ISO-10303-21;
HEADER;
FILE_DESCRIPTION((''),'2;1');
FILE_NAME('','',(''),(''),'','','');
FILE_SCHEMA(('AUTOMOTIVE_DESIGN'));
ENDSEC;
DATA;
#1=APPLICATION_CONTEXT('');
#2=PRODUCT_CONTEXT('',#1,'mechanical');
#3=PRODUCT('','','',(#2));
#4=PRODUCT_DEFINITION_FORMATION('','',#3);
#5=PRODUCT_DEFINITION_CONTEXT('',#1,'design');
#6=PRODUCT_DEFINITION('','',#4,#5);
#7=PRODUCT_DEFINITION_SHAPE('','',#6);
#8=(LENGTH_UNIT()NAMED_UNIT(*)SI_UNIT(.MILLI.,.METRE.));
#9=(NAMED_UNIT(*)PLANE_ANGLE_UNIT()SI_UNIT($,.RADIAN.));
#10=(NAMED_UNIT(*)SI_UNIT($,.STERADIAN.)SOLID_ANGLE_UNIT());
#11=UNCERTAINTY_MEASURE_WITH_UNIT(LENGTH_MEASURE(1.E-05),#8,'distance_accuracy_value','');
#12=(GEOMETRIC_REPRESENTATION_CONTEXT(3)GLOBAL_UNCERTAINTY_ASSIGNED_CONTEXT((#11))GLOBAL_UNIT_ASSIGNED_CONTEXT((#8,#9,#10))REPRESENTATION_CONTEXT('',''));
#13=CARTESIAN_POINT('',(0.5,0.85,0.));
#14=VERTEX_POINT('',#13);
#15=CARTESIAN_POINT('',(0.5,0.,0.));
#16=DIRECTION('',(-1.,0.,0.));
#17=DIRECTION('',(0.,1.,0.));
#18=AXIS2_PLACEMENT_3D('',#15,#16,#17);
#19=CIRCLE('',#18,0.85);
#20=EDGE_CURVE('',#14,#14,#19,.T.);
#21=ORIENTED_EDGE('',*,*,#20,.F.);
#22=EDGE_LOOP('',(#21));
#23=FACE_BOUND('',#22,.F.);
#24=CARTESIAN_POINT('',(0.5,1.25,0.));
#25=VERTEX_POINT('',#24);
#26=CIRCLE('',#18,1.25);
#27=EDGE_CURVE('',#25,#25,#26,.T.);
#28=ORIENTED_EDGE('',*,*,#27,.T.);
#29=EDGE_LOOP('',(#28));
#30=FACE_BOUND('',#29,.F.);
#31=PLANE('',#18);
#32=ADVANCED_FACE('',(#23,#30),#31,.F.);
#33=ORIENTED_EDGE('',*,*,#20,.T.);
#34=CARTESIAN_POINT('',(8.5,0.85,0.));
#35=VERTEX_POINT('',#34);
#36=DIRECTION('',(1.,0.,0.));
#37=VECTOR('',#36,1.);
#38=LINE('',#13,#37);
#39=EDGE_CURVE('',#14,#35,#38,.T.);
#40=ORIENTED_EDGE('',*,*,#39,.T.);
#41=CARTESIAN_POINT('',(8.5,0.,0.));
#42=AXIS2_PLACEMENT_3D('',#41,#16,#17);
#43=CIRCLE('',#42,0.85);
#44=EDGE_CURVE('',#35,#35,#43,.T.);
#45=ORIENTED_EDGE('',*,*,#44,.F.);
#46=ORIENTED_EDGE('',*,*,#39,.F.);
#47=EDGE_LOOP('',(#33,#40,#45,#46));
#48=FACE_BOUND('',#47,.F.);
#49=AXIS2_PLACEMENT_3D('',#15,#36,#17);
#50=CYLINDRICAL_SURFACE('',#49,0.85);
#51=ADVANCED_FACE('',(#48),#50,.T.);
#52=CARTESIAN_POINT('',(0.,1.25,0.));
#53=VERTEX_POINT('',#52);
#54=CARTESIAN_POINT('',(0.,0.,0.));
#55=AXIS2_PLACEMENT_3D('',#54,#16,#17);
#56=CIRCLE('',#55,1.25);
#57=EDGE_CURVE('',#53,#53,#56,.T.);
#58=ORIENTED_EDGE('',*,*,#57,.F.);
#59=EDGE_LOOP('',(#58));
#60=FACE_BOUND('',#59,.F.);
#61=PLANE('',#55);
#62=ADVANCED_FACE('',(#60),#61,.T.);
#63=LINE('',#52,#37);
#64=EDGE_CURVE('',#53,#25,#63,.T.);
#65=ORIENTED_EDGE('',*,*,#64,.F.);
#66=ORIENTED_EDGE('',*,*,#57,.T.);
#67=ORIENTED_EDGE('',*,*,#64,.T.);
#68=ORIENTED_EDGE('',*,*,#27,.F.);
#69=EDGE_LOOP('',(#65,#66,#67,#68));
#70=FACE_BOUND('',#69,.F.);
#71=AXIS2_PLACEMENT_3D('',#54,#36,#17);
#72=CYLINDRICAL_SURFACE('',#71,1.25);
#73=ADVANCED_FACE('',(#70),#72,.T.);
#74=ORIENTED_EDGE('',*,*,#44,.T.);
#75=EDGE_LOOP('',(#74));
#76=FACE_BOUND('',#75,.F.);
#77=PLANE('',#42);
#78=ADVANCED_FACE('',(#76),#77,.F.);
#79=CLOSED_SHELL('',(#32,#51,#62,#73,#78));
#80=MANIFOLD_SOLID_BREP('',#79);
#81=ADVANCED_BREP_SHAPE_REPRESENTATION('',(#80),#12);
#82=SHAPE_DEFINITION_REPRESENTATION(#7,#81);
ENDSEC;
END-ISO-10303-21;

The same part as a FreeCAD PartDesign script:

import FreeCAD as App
import Part
import Sketcher

V = App.Vector
Q = App.Units.Quantity


def add_polygon(sketch, points):
    """Adds a closed chain of lines whose ends are joined by coincident constraints."""
    first, n = sketch.GeometryCount, len(points)
    for a, b in zip(points, points[1:] + points[:1]):
        sketch.addGeometry(Part.LineSegment(App.Vector(*a, 0), App.Vector(*b, 0)), False)
    for i in range(n):
        sketch.addConstraint(Sketcher.Constraint("Coincident", first + i, 2, first + (i + 1) % n, 1))

doc = App.newDocument("Part")
body = doc.addObject("PartDesign::Body", "Body")

sketch1 = body.newObject("Sketcher::SketchObject", "Sketch")
sketch1.AttachmentSupport = (doc.getObject("XY_Plane"), [""])
sketch1.MapMode = "FlatFace"
add_polygon(sketch1, [(0, 1.25), (0, 0), (8.5, 0), (8.5, 0.85), (0.5, 0.85), (0.5, 1.25)])
sketch1.addConstraint([
    Sketcher.Constraint("Vertical", 0),
    Sketcher.Constraint("Horizontal", 1),
    Sketcher.Constraint("Vertical", 2),
    Sketcher.Constraint("Horizontal", 3),
    Sketcher.Constraint("Vertical", 4),
    Sketcher.Constraint("Horizontal", 5),
    Sketcher.Constraint("Coincident", 0, 2, -1, 1),
    Sketcher.Constraint("DistanceX", 3, 2, 3, 1, Q("8 mm")),
    Sketcher.Constraint("DistanceX", 5, 2, 5, 1, Q("0.5 mm")),
    Sketcher.Constraint("DistanceY", 0, 2, 0, 1, Q("1.25 mm")),
    Sketcher.Constraint("DistanceY", 2, 1, 2, 2, Q("0.85 mm")),
])
revolution = body.newObject("PartDesign::Revolution", "Revolution")
revolution.Profile = sketch1
revolution.ReferenceAxis = (sketch1, ["H_Axis"])
revolution.Angle = 360

doc.recompute()
